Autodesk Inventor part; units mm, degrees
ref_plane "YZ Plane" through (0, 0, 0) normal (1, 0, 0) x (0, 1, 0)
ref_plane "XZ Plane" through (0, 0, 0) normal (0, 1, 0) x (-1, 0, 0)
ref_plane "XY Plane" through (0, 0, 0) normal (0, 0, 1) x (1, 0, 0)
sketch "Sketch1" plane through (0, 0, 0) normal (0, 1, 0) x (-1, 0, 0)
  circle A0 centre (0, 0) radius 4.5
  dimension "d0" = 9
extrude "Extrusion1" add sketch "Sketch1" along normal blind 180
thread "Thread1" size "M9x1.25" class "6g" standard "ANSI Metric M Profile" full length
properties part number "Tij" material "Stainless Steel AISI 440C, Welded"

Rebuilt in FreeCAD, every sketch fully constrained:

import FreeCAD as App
import Part
import Sketcher
Q = App.Units.Quantity

doc = App.newDocument("Part")
body = doc.addObject("PartDesign::Body", "Body")

# Sketch on XZ plane
sketch1 = doc.addObject("Sketcher::SketchObject", "Sketch")
body.addObject(sketch1)
sketch1.AttachmentSupport = (doc.XZ_Plane, [""])
sketch1.MapMode = "FlatFace"
sketch1.addGeometry(Part.Circle(App.Vector(0, 0, 0), App.Vector(0, 0, 1), 4.5), False)
sketch1.addConstraint(Sketcher.Constraint("Coincident", 0, 3, -1, 1))
sketch1.addConstraint(Sketcher.Constraint("Diameter", 0, Q("9 mm")))
pad1 = doc.addObject("PartDesign::Pad", "Pad")
body.addObject(pad1)
pad1.Profile = sketch1
pad1.Length = 180
pad1.Reversed = True

doc.recompute()
